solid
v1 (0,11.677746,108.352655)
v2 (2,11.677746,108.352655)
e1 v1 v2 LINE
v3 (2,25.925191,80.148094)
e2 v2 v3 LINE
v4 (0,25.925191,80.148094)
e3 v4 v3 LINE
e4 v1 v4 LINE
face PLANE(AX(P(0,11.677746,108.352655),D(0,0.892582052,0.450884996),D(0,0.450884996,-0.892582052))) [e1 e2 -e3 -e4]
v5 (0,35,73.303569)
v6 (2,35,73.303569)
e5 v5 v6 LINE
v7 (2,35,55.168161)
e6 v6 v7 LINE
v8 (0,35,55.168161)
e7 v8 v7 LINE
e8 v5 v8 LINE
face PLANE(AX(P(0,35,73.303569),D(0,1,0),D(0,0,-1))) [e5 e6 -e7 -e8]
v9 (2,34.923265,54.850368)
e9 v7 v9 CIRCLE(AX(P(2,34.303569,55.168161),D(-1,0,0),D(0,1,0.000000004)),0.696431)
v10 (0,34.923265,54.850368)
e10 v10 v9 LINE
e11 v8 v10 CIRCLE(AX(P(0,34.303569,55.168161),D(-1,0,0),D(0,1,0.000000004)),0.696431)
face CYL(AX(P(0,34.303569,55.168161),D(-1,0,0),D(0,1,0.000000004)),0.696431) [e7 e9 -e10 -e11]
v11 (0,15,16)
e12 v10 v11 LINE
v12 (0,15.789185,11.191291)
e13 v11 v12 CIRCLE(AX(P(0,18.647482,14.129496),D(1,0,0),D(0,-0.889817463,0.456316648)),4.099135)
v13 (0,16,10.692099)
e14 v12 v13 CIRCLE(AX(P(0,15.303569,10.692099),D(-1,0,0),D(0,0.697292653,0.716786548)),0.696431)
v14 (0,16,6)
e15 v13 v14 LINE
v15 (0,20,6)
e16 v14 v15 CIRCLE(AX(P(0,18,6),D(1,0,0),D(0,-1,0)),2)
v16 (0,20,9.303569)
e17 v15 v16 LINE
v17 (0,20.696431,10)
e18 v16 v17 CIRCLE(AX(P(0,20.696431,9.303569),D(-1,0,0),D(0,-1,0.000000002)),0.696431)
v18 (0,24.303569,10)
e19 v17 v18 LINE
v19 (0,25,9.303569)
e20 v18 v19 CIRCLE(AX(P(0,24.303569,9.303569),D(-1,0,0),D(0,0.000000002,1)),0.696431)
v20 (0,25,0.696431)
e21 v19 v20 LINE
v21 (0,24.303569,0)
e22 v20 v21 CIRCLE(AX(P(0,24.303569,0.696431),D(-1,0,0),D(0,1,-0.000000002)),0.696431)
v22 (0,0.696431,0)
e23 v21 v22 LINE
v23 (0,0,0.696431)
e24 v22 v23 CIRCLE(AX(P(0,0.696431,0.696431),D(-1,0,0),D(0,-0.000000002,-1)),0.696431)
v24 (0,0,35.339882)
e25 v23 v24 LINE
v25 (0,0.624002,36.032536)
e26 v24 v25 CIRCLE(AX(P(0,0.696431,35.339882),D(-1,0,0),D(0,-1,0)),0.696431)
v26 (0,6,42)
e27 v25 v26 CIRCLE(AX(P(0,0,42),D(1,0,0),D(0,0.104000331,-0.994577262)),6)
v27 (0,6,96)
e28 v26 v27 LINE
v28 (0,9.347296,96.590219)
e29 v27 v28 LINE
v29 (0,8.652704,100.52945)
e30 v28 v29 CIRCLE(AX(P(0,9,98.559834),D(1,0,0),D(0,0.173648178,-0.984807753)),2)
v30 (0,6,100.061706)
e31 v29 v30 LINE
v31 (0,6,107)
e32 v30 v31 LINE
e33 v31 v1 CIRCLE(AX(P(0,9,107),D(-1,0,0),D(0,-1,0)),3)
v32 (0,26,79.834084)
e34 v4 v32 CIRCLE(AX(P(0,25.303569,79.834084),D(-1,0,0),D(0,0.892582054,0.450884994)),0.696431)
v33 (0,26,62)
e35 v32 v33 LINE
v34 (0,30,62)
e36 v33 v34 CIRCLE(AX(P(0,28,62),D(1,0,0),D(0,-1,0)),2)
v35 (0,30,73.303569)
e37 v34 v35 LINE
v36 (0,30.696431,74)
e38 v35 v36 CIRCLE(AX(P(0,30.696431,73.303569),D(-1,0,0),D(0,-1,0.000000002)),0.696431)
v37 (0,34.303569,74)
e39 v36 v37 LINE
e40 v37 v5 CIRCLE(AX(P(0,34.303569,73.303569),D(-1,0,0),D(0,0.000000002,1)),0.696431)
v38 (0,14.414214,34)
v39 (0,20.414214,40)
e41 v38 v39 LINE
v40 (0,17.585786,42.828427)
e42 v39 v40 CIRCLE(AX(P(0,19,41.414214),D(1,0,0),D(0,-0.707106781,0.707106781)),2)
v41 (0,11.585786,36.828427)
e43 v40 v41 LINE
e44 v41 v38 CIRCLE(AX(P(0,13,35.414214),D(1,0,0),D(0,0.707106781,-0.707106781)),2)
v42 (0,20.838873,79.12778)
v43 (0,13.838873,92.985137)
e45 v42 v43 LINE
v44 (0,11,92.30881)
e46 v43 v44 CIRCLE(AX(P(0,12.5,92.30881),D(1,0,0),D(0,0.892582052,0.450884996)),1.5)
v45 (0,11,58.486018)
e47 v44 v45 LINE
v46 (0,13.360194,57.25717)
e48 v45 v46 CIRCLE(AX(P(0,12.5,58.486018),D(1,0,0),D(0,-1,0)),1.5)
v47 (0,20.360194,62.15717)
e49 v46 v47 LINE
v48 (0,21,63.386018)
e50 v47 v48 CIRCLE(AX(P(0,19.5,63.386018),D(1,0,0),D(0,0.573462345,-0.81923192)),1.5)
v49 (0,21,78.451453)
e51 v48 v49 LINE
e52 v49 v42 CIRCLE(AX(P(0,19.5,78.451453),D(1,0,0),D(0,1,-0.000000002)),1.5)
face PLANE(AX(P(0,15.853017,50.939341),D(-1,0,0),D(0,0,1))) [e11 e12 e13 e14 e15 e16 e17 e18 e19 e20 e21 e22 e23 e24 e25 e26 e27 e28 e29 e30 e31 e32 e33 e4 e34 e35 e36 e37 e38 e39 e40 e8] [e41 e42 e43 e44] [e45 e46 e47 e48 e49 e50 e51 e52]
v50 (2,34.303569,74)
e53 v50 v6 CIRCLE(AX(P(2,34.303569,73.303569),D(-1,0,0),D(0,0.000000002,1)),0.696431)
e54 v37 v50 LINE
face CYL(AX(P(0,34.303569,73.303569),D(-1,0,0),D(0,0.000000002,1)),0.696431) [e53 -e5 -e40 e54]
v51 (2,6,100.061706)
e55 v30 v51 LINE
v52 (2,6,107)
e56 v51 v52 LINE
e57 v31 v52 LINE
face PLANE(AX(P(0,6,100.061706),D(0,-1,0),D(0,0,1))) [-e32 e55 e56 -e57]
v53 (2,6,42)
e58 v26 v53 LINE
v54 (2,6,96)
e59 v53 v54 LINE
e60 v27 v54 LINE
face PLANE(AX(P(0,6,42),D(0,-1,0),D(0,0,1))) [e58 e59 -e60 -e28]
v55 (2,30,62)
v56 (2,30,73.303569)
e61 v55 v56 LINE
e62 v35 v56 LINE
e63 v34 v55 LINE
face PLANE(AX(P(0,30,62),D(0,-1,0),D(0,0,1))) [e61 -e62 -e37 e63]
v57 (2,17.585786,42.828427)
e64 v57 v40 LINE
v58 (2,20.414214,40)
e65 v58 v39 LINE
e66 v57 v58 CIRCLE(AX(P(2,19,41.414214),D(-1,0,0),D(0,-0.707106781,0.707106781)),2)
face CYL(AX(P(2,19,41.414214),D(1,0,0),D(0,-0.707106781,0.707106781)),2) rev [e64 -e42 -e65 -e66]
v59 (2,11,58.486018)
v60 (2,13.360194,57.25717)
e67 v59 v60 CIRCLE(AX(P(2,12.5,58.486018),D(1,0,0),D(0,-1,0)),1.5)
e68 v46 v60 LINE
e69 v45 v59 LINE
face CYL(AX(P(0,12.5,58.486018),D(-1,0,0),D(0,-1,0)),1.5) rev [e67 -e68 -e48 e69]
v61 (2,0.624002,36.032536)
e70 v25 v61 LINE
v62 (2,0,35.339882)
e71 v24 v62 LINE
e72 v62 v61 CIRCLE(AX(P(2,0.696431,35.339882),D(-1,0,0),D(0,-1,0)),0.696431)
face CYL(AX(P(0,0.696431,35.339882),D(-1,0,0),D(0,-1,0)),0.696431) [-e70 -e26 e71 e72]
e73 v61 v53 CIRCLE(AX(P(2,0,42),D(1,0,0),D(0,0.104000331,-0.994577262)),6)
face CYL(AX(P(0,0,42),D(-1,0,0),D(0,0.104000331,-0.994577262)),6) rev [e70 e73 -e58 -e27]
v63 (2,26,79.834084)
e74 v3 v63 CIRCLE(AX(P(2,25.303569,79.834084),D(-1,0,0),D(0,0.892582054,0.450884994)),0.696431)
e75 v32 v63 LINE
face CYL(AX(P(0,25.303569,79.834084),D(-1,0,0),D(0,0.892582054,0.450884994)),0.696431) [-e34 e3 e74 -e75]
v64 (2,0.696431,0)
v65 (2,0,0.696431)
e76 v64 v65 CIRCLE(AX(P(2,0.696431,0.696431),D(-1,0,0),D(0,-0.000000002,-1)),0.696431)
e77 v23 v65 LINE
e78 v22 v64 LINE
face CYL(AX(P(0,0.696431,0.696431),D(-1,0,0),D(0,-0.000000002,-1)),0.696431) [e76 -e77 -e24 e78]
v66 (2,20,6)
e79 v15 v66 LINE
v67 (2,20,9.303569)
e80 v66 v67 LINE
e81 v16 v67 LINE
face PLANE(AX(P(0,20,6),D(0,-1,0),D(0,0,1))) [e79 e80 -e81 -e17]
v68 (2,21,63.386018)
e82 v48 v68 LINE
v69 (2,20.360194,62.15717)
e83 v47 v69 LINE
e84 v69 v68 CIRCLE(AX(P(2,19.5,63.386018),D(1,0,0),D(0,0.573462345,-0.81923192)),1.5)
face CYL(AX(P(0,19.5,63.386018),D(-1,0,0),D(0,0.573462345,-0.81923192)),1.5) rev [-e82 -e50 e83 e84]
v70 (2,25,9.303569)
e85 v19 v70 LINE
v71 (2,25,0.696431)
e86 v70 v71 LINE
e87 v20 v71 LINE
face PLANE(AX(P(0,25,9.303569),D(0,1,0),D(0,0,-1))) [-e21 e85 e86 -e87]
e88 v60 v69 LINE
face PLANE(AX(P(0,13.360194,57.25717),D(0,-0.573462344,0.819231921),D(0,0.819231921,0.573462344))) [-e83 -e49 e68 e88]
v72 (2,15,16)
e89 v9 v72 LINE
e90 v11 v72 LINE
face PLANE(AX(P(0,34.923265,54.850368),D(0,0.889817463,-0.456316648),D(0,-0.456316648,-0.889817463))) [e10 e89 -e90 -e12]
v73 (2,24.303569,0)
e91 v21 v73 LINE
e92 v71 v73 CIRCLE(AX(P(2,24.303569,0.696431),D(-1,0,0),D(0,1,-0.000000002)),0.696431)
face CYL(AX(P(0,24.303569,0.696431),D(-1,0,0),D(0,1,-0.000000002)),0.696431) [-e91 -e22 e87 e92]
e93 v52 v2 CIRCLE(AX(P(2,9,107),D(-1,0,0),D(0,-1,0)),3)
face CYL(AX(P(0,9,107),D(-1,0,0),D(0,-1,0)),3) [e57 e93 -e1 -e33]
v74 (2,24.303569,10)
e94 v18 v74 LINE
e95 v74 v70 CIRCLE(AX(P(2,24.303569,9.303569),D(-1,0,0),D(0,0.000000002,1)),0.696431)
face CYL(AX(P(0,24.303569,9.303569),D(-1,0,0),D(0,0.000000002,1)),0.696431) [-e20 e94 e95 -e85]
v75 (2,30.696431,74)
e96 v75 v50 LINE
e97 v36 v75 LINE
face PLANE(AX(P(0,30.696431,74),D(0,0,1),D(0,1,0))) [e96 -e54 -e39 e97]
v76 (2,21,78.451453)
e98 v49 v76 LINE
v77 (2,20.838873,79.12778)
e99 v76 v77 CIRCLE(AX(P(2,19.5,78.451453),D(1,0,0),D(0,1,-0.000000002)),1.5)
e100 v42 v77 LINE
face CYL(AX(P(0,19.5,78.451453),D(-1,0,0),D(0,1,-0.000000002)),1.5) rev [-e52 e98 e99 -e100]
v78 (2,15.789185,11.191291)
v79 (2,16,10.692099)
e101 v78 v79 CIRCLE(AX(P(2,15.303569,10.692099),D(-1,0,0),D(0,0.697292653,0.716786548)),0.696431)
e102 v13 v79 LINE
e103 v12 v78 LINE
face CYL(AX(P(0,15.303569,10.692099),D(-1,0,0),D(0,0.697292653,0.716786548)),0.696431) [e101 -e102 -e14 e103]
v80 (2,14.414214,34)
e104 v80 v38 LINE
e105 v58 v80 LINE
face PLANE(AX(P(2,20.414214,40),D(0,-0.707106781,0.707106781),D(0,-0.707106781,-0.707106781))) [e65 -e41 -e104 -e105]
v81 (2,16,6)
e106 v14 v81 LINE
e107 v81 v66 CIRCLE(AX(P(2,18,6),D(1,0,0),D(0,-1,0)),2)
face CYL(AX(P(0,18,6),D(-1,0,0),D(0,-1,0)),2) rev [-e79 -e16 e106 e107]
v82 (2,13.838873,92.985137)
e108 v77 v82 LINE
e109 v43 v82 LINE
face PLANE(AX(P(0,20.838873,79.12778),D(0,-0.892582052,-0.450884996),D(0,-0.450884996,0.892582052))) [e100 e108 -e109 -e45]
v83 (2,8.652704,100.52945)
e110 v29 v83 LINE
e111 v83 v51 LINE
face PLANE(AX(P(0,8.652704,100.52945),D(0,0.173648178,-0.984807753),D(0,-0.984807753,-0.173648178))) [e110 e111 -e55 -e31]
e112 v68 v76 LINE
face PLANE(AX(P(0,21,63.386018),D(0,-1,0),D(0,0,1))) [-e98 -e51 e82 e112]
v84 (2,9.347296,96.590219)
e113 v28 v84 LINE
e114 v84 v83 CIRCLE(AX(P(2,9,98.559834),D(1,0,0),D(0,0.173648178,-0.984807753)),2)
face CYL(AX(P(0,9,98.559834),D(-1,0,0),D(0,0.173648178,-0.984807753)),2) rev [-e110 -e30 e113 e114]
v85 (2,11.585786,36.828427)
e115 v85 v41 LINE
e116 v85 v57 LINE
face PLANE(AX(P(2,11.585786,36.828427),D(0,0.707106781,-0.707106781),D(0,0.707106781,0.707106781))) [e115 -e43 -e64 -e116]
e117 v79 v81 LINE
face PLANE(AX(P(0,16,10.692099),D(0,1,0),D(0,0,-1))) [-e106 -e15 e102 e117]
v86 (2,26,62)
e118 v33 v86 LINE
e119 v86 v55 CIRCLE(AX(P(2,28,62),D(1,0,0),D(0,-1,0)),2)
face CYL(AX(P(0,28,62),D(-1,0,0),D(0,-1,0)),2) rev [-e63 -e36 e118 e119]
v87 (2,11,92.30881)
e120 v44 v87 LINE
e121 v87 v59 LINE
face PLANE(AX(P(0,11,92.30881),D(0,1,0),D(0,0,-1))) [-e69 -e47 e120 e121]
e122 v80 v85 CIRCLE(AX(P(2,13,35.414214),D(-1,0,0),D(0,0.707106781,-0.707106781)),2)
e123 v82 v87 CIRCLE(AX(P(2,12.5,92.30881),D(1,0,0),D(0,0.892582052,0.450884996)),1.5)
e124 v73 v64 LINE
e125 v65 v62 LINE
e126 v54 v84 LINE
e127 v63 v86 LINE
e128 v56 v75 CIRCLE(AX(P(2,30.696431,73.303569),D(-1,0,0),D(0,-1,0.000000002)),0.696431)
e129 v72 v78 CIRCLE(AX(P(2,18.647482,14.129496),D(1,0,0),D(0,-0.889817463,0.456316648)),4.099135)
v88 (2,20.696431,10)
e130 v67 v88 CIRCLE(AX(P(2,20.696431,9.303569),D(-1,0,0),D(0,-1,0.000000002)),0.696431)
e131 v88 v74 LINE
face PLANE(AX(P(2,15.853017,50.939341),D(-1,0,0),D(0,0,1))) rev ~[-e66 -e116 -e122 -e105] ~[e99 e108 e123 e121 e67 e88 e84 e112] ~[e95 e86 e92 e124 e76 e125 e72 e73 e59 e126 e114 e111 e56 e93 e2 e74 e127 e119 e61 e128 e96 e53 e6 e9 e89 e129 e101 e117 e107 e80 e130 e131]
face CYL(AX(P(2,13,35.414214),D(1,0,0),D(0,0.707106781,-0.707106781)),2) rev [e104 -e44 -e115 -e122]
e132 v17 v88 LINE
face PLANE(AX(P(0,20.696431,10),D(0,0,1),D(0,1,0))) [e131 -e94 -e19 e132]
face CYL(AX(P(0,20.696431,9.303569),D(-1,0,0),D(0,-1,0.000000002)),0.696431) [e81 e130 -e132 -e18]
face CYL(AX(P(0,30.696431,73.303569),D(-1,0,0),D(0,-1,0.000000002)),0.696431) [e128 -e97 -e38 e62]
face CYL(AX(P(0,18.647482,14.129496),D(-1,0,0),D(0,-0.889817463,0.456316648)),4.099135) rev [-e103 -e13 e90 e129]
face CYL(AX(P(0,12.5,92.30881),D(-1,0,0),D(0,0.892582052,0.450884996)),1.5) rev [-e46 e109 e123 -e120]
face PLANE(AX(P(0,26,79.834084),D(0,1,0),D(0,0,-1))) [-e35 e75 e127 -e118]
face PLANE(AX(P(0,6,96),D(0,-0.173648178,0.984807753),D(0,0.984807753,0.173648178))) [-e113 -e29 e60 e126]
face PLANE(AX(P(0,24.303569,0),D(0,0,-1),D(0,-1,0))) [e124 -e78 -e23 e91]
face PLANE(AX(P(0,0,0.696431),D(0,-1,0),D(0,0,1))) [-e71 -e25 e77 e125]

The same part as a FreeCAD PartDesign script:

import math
import FreeCAD as App
import Part
import Sketcher

V = App.Vector
Q = App.Units.Quantity

doc = App.newDocument("Part")
params = doc.addObject("Spreadsheet::Sheet", "Params")
for row, (alias, value) in enumerate([
    ("sketch1_radius", "2 mm"),
    ("sketch1_radius2", "3 mm"),
    ("sketch1_radius3", "6 mm"),
    ("sketch1_radius4", "1.5 mm"),
    ("sketch1_height", "54 mm"),
    ("pad1_length", "2 mm"),
    ("sketch2_radius", "2 mm"),
], start=1):
    params.set(f"A{row}", alias)
    params.set(f"B{row}", "=" + value)
    params.setAlias(f"B{row}", alias)

body = doc.addObject("PartDesign::Body", "Body")

# Sketch on YZ plane
sketch1 = body.newObject("Sketcher::SketchObject", "Sketch")
sketch1.AttachmentSupport = (doc.getObject("YZ_Plane"), [""])
sketch1.MapMode = "FlatFace"
sketch1.addGeometry([
    Part.LineSegment(V(0.7, 0, 0), V(24.3, 0, 0)),  # 0
    Part.ArcOfCircle(Part.Circle(V(24.3, 0.7, 0), V(0, 0, 1), 0.7), math.radians(-90), math.radians(0)),  # 1
    Part.LineSegment(V(25, 0.7, 0), V(25, 9.3, 0)),  # 2
    Part.ArcOfCircle(Part.Circle(V(24.3, 9.3, 0), V(0, 0, 1), 0.7), math.radians(0), math.radians(90)),  # 3
    Part.LineSegment(V(24.3, 10, 0), V(20.7, 10, 0)),  # 4
    Part.ArcOfCircle(Part.Circle(V(20.7, 9.3, 0), V(0, 0, 1), 0.7), math.radians(90), math.radians(180)),  # 5
    Part.LineSegment(V(20, 9.3, 0), V(20, 6, 0)),  # 6
    Part.ArcOfCircle(Part.Circle(V(18, 6, 0), V(0, 0, 1), 2), math.radians(180), math.radians(360)),  # 7
    Part.LineSegment(V(16, 6, 0), V(16, 10.69, 0)),  # 8
    Part.ArcOfCircle(Part.Circle(V(15.3, 10.69, 0), V(0, 0, 1), 0.7), math.radians(0), math.radians(46)),  # 9
    Part.ArcOfCircle(Part.Circle(V(18.65, 14.13, 0), V(0, 0, 1), 4.1), math.radians(153), math.radians(226)),  # 10
    Part.LineSegment(V(15, 16, 0), V(34.92, 54.85, 0)),  # 11
    Part.ArcOfCircle(Part.Circle(V(34.3, 55.17, 0), V(0, 0, 1), 0.7), math.radians(-27), math.radians(0)),  # 12
    Part.LineSegment(V(35, 55.17, 0), V(35, 73.3, 0)),  # 13
    Part.ArcOfCircle(Part.Circle(V(34.3, 73.3, 0), V(0, 0, 1), 0.7), math.radians(0), math.radians(90)),  # 14
    Part.LineSegment(V(34.3, 74, 0), V(30.7, 74, 0)),  # 15
    Part.ArcOfCircle(Part.Circle(V(30.7, 73.3, 0), V(0, 0, 1), 0.7), math.radians(90), math.radians(180)),  # 16
    Part.LineSegment(V(30, 73.3, 0), V(30, 62, 0)),  # 17
    Part.ArcOfCircle(Part.Circle(V(28, 62, 0), V(0, 0, 1), 2), math.radians(180), math.radians(360)),  # 18
    Part.LineSegment(V(26, 62, 0), V(26, 79.83, 0)),  # 19
    Part.ArcOfCircle(Part.Circle(V(25.3, 79.83, 0), V(0, 0, 1), 0.7), math.radians(0), math.radians(27)),  # 20
    Part.LineSegment(V(25.93, 80.15, 0), V(11.68, 108.35, 0)),  # 21
    Part.ArcOfCircle(Part.Circle(V(9, 107, 0), V(0, 0, 1), 3), math.radians(27), math.radians(180)),  # 22
    Part.LineSegment(V(6, 107, 0), V(6, 100.06, 0)),  # 23
    Part.LineSegment(V(6, 100.06, 0), V(8.65, 100.53, 0)),  # 24
    Part.ArcOfCircle(Part.Circle(V(9, 98.56, 0), V(0, 0, 1), 2), math.radians(-80), math.radians(100)),  # 25
    Part.LineSegment(V(9.35, 96.59, 0), V(6, 96, 0)),  # 26
    Part.LineSegment(V(6, 96, 0), V(6, 42, 0)),  # 27
    Part.ArcOfCircle(Part.Circle(V(0, 42, 0), V(0, 0, 1), 6), math.radians(-84), math.radians(0)),  # 28
    Part.ArcOfCircle(Part.Circle(V(0.7, 35.34, 0), V(0, 0, 1), 0.7), math.radians(96), math.radians(180)),  # 29
    Part.LineSegment(V(0, 35.34, 0), V(0, 0.7, 0)),  # 30
    Part.ArcOfCircle(Part.Circle(V(0.7, 0.7, 0), V(0, 0, 1), 0.7), math.radians(-180), math.radians(-90)),  # 31
    Part.ArcOfCircle(Part.Circle(V(12.5, 92.31, 0), V(0, 0, 1), 1.5), math.radians(27), math.radians(180)),  # 32
    Part.LineSegment(V(13.84, 92.99, 0), V(20.84, 79.13, 0)),  # 33
    Part.ArcOfCircle(Part.Circle(V(19.5, 78.45, 0), V(0, 0, 1), 1.5), math.radians(0), math.radians(27)),  # 34
    Part.LineSegment(V(21, 78.45, 0), V(21, 63.39, 0)),  # 35
    Part.ArcOfCircle(Part.Circle(V(19.5, 63.39, 0), V(0, 0, 1), 1.5), math.radians(-55), math.radians(0)),  # 36
    Part.LineSegment(V(20.36, 62.16, 0), V(13.36, 57.26, 0)),  # 37
    Part.ArcOfCircle(Part.Circle(V(12.5, 58.49, 0), V(0, 0, 1), 1.5), math.radians(-180), math.radians(-55)),  # 38
    Part.LineSegment(V(11, 58.49, 0), V(11, 92.31, 0)),  # 39
], False)
sketch1.addConstraint([
    Sketcher.Constraint("Tangent", 0, 2, 1, 1),
    Sketcher.Constraint("Tangent", 1, 2, 2, 1),
    Sketcher.Constraint("Tangent", 2, 2, 3, 1),
    Sketcher.Constraint("Tangent", 3, 2, 4, 1),
    Sketcher.Constraint("Tangent", 4, 2, 5, 1),
    Sketcher.Constraint("Tangent", 5, 2, 6, 1),
    Sketcher.Constraint("Tangent", 6, 2, 7, 2),
    Sketcher.Constraint("Tangent", 7, 1, 8, 1),
    Sketcher.Constraint("Tangent", 8, 2, 9, 1),
    Sketcher.Constraint("Tangent", 9, 2, 10, 2),
    Sketcher.Constraint("Tangent", 10, 1, 11, 1),
    Sketcher.Constraint("Tangent", 11, 2, 12, 1),
    Sketcher.Constraint("Tangent", 12, 2, 13, 1),
    Sketcher.Constraint("Tangent", 13, 2, 14, 1),
    Sketcher.Constraint("Tangent", 14, 2, 15, 1),
    Sketcher.Constraint("Tangent", 15, 2, 16, 1),
    Sketcher.Constraint("Tangent", 16, 2, 17, 1),
    Sketcher.Constraint("Tangent", 17, 2, 18, 2),
    Sketcher.Constraint("Tangent", 18, 1, 19, 1),
    Sketcher.Constraint("Tangent", 19, 2, 20, 1),
    Sketcher.Constraint("Tangent", 20, 2, 21, 1),
    Sketcher.Constraint("Tangent", 21, 2, 22, 1),
    Sketcher.Constraint("Tangent", 22, 2, 23, 1),
    Sketcher.Constraint("Coincident", 23, 2, 24, 1),
    Sketcher.Constraint("Tangent", 24, 2, 25, 2),
    Sketcher.Constraint("Tangent", 25, 1, 26, 1),
    Sketcher.Constraint("Coincident", 26, 2, 27, 1),
    Sketcher.Constraint("Tangent", 27, 2, 28, 2),
    Sketcher.Constraint("Tangent", 28, 1, 29, 1),
    Sketcher.Constraint("Tangent", 29, 2, 30, 1),
    Sketcher.Constraint("Tangent", 30, 2, 31, 1),
    Sketcher.Constraint("Tangent", 31, 2, 0, 1),
    Sketcher.Constraint("Tangent", 32, 1, 33, 1),
    Sketcher.Constraint("Tangent", 33, 2, 34, 2),
    Sketcher.Constraint("Tangent", 34, 1, 35, 1),
    Sketcher.Constraint("Tangent", 35, 2, 36, 2),
    Sketcher.Constraint("Tangent", 36, 1, 37, 1),
    Sketcher.Constraint("Tangent", 37, 2, 38, 2),
    Sketcher.Constraint("Tangent", 38, 1, 39, 1),
    Sketcher.Constraint("Tangent", 39, 2, 32, 2),
    Sketcher.Constraint("Horizontal", 0),
    Sketcher.Constraint("Vertical", 2),
    Sketcher.Constraint("Horizontal", 4),
    Sketcher.Constraint("Vertical", 6),
    Sketcher.Constraint("Vertical", 8),
    Sketcher.Constraint("Vertical", 13),
    Sketcher.Constraint("Horizontal", 15),
    Sketcher.Constraint("Vertical", 17),
    Sketcher.Constraint("Vertical", 19),
    Sketcher.Constraint("Vertical", 23),
    Sketcher.Constraint("Vertical", 27),
    Sketcher.Constraint("Vertical", 30),
    Sketcher.Constraint("Vertical", 35),
    Sketcher.Constraint("Vertical", 39),
    Sketcher.Constraint("Equal", 1, 3),
    Sketcher.Constraint("Equal", 3, 5),
    Sketcher.Constraint("Equal", 5, 9),
    Sketcher.Constraint("Equal", 9, 12),
    Sketcher.Constraint("Equal", 12, 14),
    Sketcher.Constraint("Equal", 14, 16),
    Sketcher.Constraint("Equal", 7, 18),
    Sketcher.Constraint("Equal", 16, 20),
    Sketcher.Constraint("Equal", 18, 25),
    Sketcher.Constraint("Equal", 20, 29),
    Sketcher.Constraint("Equal", 29, 31),
    Sketcher.Constraint("Equal", 32, 34),
    Sketcher.Constraint("Equal", 34, 36),
    Sketcher.Constraint("Equal", 36, 38),
    Sketcher.Constraint("PointOnObject", 28, 3, -2),
    Sketcher.Constraint("PointOnObject", 0, 2, -1),
    Sketcher.Constraint("PointOnObject", 29, 2, -2),
    Sketcher.Constraint("Parallel", 24, 26),
    Sketcher.Constraint("Parallel", 21, 33),
    Sketcher.Constraint("Vertical", 22, 3, 25, 3),
    Sketcher.Constraint("Vertical", 23, 2, 26, 2),
    Sketcher.Constraint("Equal", 4, 15),
    Sketcher.Constraint("Radius", 7, Q("2 mm")),
    Sketcher.Constraint("Radius", 22, Q("3 mm")),
    Sketcher.Constraint("Radius", 28, Q("6 mm")),
    Sketcher.Constraint("Radius", 32, Q("1.5 mm")),
    Sketcher.Constraint("DistanceY", 27, 2, 27, 1, Q("54 mm")),
    Sketcher.Constraint("Angle", 24, Q("10 deg")),
    Sketcher.Constraint("DistanceX", -1, 1, 7, 3, Q("18 mm")),
    Sketcher.Constraint("DistanceY", -1, 1, 7, 3, Q("6 mm")),
    Sketcher.Constraint("DistanceX", -1, 1, 18, 3, Q("28 mm")),
    Sketcher.Constraint("DistanceY", -1, 1, 18, 3, Q("62 mm")),
    Sketcher.Constraint("DistanceY", -1, 1, 22, 3, Q("107 mm")),
    Sketcher.Constraint("DistanceY", -1, 1, 28, 3, Q("42 mm")),
    Sketcher.Constraint("DistanceX", -1, 1, 1, 2, Q("25 mm")),
    Sketcher.Constraint("DistanceY", -1, 1, 3, 2, Q("10 mm")),
    Sketcher.Constraint("DistanceX", -1, 1, 10, 1, Q("15 mm")),
    Sketcher.Constraint("DistanceY", -1, 1, 10, 1, Q("16 mm")),
    Sketcher.Constraint("DistanceY", -1, 1, 14, 2, Q("74 mm")),
    Sketcher.Constraint("DistanceX", -1, 1, 34, 1, Q("21 mm")),
    Sketcher.Constraint("DistanceX", -1, 1, 38, 1, Q("11 mm")),
    Sketcher.Constraint("DistanceY", 38, 3, 36, 3, Q("4.9 mm")),
    Sketcher.Constraint("Radius", 1, Q("0.696431 mm")),
    Sketcher.Constraint("DistanceY", 8, 1, 8, 2, Q("4.692099 mm")),
    Sketcher.Constraint("Radius", 10, Q("4.099135 mm")),
    Sketcher.Constraint("DistanceY", 19, 1, 19, 2, Q("17.834084 mm")),
    Sketcher.Constraint("DistanceY", 35, 2, 35, 1, Q("15.065435 mm")),
    Sketcher.Constraint("DistanceY", -1, 1, 32, 3, Q("92.30881 mm")),
])
sketch1.setExpression("Constraints[76]", "Params.sketch1_radius")
sketch1.setExpression("Constraints[77]", "Params.sketch1_radius2")
sketch1.setExpression("Constraints[78]", "Params.sketch1_radius3")
sketch1.setExpression("Constraints[79]", "Params.sketch1_radius4")
sketch1.setExpression("Constraints[80]", "Params.sketch1_height")
pad1 = body.newObject("PartDesign::Pad", "Pad")
pad1.Profile = sketch1
pad1.setExpression("Length", "Params.pad1_length")

# Sketch on YZ plane
sketch2 = body.newObject("Sketcher::SketchObject", "Sketch001")
sketch2.AttachmentSupport = (doc.getObject("YZ_Plane"), [""])
sketch2.MapMode = "FlatFace"
sketch2.AttachmentOffset = App.Placement(V(0, 0, 2), App.Rotation())
sketch2.addGeometry([
    Part.LineSegment(V(14.4, 34, 0), V(20.4, 40, 0)),
    Part.ArcOfCircle(Part.Circle(V(19, 41.4, 0), V(0, 0, 1), 2), math.radians(-45), math.radians(135)),
    Part.LineSegment(V(17.6, 42.8, 0), V(11.6, 36.8, 0)),
    Part.ArcOfCircle(Part.Circle(V(13, 35.4, 0), V(0, 0, 1), 2), math.radians(135), math.radians(315)),
], False)
sketch2.addConstraint([
    Sketcher.Constraint("Tangent", 0, 2, 1, 1),
    Sketcher.Constraint("Tangent", 1, 2, 2, 1),
    Sketcher.Constraint("Tangent", 2, 2, 3, 1),
    Sketcher.Constraint("Tangent", 3, 2, 0, 1),
    Sketcher.Constraint("Equal", 1, 3),
    Sketcher.Constraint("Radius", 1, Q("2 mm")),
    Sketcher.Constraint("Angle", 0, Q("45 deg")),
    Sketcher.Constraint("DistanceX", -1, 1, 1, 3, Q("19 mm")),
    Sketcher.Constraint("DistanceX", -1, 1, 3, 3, Q("13 mm")),
    Sketcher.Constraint("DistanceY", -1, 1, 0, 2, Q("40 mm")),
])
sketch2.setExpression("Constraints[5]", "Params.sketch2_radius")
pocket1 = body.newObject("PartDesign::Pocket", "Pocket")
pocket1.Profile = sketch2
pocket1.Type = "ThroughAll"

doc.recompute()
